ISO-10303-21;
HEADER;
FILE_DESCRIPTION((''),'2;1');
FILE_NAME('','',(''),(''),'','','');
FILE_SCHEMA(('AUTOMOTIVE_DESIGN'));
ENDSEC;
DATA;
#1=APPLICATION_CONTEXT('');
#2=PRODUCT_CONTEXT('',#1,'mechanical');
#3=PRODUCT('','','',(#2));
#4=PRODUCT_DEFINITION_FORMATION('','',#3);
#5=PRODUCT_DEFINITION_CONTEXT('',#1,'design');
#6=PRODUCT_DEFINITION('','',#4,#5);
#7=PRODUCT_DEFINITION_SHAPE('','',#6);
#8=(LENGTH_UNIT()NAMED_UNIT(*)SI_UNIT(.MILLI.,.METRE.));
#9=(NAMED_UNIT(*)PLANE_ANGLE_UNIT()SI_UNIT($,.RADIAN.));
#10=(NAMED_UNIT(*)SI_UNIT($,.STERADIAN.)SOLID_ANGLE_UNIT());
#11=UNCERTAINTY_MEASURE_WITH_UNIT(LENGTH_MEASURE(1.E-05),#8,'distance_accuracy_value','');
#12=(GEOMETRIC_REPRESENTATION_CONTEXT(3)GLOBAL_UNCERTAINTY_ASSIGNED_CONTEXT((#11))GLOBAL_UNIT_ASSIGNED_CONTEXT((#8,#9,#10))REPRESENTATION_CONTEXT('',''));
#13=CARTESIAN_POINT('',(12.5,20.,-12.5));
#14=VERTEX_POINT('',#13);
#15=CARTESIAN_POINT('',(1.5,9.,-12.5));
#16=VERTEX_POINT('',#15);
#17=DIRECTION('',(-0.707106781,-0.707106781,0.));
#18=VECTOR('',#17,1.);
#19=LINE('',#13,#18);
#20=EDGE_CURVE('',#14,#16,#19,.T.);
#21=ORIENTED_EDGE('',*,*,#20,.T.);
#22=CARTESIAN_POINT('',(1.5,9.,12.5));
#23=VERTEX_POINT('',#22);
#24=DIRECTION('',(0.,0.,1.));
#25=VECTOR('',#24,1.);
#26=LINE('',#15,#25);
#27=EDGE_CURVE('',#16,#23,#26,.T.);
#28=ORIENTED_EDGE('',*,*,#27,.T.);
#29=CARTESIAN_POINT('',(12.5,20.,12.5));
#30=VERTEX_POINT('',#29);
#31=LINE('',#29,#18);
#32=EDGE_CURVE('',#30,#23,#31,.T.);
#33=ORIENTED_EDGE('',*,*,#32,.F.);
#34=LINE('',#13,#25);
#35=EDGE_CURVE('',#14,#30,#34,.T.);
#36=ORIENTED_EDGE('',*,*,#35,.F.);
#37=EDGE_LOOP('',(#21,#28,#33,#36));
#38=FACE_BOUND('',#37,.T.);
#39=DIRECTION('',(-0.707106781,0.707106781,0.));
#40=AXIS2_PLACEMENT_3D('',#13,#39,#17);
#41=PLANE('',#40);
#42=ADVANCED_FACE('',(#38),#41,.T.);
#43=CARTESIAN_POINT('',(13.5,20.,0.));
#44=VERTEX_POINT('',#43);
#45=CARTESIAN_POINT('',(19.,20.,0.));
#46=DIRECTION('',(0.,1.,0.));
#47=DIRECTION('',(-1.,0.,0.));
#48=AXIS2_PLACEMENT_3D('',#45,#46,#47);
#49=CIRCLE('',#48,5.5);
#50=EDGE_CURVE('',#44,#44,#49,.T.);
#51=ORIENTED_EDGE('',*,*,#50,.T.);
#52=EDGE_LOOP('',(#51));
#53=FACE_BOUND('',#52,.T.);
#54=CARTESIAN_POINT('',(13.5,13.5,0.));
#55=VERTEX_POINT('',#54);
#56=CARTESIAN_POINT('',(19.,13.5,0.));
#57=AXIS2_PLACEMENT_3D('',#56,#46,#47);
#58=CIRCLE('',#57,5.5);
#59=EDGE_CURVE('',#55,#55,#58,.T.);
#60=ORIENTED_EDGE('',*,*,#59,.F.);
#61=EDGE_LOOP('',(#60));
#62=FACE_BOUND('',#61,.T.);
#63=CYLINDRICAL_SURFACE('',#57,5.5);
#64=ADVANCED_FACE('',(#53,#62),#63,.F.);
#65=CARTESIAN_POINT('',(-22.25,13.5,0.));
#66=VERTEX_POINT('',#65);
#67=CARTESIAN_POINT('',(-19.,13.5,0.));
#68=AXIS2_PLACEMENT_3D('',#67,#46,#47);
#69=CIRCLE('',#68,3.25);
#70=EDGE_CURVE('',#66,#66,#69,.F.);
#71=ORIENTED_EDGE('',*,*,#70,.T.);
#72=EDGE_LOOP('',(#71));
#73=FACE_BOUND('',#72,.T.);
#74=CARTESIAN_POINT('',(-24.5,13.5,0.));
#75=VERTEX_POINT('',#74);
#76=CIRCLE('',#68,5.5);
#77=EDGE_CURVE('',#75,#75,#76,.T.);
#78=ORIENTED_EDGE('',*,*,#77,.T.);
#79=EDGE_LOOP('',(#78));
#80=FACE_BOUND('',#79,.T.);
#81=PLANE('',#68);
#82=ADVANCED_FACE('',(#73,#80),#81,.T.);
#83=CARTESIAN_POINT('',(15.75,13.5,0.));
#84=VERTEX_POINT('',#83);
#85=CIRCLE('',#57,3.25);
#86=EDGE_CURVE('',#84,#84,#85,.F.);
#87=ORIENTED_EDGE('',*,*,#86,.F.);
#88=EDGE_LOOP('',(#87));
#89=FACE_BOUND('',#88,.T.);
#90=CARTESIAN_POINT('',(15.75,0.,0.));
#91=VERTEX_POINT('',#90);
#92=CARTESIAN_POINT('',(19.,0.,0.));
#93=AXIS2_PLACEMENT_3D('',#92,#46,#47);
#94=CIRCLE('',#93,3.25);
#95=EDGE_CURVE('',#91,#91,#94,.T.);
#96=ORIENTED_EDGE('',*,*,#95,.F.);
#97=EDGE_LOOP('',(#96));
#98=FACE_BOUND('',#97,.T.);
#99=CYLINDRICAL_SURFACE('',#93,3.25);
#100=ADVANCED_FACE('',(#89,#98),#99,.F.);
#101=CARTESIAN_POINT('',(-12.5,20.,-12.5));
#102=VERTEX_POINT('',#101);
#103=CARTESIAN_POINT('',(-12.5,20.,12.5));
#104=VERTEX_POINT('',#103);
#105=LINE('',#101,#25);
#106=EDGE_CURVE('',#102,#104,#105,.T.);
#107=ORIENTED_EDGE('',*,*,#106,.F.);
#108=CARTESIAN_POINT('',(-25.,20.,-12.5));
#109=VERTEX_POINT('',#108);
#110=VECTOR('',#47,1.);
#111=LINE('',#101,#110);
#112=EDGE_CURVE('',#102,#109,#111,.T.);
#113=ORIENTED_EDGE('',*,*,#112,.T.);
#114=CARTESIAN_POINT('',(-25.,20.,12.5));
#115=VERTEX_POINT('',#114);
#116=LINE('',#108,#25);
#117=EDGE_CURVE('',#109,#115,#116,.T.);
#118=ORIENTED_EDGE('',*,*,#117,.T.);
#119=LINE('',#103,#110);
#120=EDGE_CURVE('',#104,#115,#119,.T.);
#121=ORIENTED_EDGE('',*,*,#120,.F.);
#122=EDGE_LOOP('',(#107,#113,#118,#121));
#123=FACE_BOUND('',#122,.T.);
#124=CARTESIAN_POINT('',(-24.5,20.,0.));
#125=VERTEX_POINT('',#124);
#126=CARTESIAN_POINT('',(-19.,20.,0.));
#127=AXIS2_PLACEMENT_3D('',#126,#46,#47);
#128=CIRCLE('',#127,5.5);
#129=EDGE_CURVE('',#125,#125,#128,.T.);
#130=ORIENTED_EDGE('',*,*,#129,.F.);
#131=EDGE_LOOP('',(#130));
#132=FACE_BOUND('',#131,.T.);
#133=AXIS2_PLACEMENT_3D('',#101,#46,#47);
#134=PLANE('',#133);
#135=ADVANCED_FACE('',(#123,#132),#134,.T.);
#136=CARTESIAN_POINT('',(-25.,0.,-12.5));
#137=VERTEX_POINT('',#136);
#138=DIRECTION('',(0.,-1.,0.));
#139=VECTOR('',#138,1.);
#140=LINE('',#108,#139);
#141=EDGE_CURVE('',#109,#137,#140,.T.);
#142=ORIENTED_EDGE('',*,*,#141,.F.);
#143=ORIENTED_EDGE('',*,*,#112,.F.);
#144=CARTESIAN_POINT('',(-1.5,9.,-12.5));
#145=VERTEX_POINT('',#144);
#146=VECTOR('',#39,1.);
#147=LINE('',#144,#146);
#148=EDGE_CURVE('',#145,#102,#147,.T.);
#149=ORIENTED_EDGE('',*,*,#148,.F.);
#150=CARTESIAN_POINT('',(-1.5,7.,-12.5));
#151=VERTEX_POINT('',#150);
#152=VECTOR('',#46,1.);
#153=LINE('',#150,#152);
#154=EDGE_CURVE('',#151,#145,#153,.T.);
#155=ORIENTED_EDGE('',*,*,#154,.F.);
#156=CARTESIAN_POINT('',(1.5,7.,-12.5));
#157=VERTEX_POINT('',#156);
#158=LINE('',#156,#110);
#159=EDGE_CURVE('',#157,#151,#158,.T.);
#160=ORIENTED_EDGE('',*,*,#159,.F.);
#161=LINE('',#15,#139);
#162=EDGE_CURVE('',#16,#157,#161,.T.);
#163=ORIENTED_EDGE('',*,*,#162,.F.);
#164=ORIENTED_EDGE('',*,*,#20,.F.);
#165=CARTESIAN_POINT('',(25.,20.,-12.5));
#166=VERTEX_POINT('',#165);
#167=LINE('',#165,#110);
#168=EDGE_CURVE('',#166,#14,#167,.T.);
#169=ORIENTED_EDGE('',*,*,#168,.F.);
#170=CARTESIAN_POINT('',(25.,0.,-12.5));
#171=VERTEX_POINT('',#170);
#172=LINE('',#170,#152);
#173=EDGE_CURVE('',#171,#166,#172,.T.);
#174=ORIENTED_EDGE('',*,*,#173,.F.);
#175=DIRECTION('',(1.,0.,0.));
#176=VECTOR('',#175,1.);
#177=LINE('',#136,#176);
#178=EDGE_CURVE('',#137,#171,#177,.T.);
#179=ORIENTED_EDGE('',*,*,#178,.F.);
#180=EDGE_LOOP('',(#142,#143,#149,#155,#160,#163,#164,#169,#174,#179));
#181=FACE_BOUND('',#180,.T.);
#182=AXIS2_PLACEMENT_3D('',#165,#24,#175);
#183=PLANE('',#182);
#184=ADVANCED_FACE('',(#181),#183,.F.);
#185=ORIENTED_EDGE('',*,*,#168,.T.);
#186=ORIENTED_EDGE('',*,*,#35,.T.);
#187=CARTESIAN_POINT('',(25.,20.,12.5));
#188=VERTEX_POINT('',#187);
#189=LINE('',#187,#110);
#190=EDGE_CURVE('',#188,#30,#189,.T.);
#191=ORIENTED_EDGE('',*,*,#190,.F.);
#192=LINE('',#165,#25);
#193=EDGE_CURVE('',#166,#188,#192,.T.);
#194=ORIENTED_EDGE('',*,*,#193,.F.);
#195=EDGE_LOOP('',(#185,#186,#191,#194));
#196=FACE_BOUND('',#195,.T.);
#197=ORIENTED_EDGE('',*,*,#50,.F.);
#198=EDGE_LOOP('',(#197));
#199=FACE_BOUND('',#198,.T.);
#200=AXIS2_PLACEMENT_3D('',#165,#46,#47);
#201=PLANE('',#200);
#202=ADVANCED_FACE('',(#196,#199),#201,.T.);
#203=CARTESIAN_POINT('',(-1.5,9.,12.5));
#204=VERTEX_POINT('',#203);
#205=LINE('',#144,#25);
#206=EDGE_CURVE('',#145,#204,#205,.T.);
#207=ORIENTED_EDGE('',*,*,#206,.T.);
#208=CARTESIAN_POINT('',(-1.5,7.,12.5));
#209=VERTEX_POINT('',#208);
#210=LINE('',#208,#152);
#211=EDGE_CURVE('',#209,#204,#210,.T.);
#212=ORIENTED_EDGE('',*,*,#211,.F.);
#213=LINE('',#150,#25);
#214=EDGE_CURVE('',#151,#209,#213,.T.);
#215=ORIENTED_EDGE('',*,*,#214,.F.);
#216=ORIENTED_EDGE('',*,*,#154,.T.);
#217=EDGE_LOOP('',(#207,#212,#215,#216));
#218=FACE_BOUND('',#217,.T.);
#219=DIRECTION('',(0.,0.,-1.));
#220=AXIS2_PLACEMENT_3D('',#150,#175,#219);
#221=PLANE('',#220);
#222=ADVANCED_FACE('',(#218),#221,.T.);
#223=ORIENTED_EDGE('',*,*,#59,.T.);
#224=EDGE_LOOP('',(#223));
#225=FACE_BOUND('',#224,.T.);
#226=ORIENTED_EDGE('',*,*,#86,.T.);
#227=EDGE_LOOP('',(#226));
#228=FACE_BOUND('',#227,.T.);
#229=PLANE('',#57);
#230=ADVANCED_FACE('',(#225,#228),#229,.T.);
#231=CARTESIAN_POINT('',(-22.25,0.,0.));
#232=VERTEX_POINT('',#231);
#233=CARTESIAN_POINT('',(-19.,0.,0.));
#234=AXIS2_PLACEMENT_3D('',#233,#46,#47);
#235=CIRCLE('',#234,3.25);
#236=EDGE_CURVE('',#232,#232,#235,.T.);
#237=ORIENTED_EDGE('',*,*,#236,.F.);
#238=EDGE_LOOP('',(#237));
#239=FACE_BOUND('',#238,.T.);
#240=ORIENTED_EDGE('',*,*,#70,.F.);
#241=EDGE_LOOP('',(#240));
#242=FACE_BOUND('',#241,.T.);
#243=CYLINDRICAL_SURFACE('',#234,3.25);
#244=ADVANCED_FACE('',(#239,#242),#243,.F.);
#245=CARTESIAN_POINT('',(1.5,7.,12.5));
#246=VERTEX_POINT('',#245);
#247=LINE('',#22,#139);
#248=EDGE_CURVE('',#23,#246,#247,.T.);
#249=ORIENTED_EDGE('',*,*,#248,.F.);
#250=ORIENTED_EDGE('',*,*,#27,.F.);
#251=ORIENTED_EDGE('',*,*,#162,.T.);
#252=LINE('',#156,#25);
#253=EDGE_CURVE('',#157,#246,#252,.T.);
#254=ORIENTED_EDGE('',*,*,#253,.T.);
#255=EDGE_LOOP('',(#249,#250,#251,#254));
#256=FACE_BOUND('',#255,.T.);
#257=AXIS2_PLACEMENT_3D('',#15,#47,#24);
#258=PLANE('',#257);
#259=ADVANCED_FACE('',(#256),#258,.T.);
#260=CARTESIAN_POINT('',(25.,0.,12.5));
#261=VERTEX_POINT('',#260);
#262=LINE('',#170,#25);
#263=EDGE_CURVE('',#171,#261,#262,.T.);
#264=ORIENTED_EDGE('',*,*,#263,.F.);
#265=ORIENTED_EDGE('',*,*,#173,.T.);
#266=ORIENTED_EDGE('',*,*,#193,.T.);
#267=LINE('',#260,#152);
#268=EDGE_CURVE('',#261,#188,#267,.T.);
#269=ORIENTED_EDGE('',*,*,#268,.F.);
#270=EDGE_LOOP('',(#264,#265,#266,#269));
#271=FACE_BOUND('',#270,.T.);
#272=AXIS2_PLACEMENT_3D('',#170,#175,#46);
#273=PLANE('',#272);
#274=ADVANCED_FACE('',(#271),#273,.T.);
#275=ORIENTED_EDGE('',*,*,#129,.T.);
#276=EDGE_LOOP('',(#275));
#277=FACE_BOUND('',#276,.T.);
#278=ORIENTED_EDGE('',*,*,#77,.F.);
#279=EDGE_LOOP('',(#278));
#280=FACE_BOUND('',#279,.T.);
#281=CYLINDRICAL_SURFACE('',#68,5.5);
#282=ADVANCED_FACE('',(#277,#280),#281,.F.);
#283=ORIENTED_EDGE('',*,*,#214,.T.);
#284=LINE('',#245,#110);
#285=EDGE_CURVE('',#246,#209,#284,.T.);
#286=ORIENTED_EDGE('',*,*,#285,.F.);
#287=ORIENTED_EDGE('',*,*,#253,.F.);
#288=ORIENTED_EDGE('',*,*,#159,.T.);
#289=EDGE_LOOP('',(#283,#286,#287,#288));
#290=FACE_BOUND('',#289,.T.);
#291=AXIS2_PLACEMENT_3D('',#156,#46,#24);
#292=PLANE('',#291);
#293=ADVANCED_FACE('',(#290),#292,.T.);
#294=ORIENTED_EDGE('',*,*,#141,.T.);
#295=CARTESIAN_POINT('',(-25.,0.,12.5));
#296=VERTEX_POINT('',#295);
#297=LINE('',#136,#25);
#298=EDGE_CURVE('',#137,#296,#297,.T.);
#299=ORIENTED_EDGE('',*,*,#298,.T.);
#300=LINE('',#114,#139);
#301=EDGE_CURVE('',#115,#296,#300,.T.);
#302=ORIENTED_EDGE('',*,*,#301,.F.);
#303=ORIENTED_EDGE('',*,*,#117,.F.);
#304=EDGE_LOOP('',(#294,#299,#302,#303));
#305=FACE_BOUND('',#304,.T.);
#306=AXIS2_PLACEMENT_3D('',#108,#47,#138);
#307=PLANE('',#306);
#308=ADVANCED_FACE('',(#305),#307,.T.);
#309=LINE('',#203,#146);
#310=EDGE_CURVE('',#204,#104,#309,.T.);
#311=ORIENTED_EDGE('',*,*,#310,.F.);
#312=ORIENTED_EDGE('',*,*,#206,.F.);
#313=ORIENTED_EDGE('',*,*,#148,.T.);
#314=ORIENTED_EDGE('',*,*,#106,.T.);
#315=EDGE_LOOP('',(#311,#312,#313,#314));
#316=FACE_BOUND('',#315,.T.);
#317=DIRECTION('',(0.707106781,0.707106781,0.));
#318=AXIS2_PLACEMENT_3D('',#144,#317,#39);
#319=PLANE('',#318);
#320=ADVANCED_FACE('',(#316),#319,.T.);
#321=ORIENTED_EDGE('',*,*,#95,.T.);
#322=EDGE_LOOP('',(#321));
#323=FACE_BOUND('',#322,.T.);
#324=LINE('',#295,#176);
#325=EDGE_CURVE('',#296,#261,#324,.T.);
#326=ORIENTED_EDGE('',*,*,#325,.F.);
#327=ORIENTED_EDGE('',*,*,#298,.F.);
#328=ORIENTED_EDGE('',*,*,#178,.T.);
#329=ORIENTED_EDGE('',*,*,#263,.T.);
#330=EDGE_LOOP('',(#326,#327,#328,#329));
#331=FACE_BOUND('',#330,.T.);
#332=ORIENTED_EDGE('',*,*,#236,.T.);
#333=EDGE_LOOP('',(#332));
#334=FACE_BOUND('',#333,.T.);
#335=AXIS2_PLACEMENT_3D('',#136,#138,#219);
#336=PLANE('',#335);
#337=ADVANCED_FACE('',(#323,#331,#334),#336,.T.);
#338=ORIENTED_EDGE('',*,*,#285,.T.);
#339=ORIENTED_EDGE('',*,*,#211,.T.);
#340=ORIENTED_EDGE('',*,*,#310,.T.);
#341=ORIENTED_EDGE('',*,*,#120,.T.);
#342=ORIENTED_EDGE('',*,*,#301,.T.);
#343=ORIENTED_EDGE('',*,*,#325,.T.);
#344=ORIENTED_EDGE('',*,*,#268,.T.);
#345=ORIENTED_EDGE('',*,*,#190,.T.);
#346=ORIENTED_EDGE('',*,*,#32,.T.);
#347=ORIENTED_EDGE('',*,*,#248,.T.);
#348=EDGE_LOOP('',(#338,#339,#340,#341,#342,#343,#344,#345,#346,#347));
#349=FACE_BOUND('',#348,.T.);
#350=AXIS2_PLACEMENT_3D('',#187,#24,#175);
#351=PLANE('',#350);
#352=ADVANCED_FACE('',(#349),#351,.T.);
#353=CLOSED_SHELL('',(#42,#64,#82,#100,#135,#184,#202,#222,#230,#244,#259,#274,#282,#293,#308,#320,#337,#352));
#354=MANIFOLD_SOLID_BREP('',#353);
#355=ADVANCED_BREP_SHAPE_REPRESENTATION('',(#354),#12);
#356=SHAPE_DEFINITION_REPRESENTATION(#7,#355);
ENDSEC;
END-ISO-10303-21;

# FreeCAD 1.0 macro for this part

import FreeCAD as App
import Part
import Sketcher
Q = App.Units.Quantity

doc = App.newDocument("Part")
params = doc.addObject("Spreadsheet::Sheet", "Params")
for row, (alias, value) in enumerate([
    ("sketch1_width", "50 mm"),
    ("sketch1_width2", "3 mm"),
    ("sketch1_height", "20 mm"),
    ("sketch1_height2", "2 mm"),
    ("sketch1_width3", "12.5 mm"),
    ("pad1_length", "12.5 mm"),
    ("pad1_length2", "12.5 mm"),
    ("sketch2_diameter", "6.5 mm"),
    ("sketch3_diameter", "11 mm"),
    ("pocket2_length", "6.5 mm"),
], start=1):
    params.set(f"A{row}", alias)
    params.set(f"B{row}", "=" + value)
    params.setAlias(f"B{row}", alias)

body = doc.addObject("PartDesign::Body", "Body")

sketch1 = body.newObject("Sketcher::SketchObject", "Sketch")
sketch1.AttachmentSupport = (doc.getObject("XY_Plane"), [""])
sketch1.MapMode = "FlatFace"
sketch1.addGeometry(Part.LineSegment(App.Vector(-25, 0, 0), App.Vector(25, 0, 0)), False)
sketch1.addGeometry(Part.LineSegment(App.Vector(25, 0, 0), App.Vector(25, 20, 0)), False)
sketch1.addGeometry(Part.LineSegment(App.Vector(25, 20, 0), App.Vector(12.5, 20, 0)), False)
sketch1.addGeometry(Part.LineSegment(App.Vector(12.5, 20, 0), App.Vector(1.5, 9, 0)), False)
sketch1.addGeometry(Part.LineSegment(App.Vector(1.5, 9, 0), App.Vector(1.5, 7, 0)), False)
sketch1.addGeometry(Part.LineSegment(App.Vector(1.5, 7, 0), App.Vector(-1.5, 7, 0)), False)
sketch1.addGeometry(Part.LineSegment(App.Vector(-1.5, 7, 0), App.Vector(-1.5, 9, 0)), False)
sketch1.addGeometry(Part.LineSegment(App.Vector(-1.5, 9, 0), App.Vector(-12.5, 20, 0)), False)
sketch1.addGeometry(Part.LineSegment(App.Vector(-12.5, 20, 0), App.Vector(-25, 20, 0)), False)
sketch1.addGeometry(Part.LineSegment(App.Vector(-25, 20, 0), App.Vector(-25, 0, 0)), False)
sketch1.addConstraint(Sketcher.Constraint("Coincident", 0, 2, 1, 1))
sketch1.addConstraint(Sketcher.Constraint("Coincident", 1, 2, 2, 1))
sketch1.addConstraint(Sketcher.Constraint("Coincident", 2, 2, 3, 1))
sketch1.addConstraint(Sketcher.Constraint("Coincident", 3, 2, 4, 1))
sketch1.addConstraint(Sketcher.Constraint("Coincident", 4, 2, 5, 1))
sketch1.addConstraint(Sketcher.Constraint("Coincident", 5, 2, 6, 1))
sketch1.addConstraint(Sketcher.Constraint("Coincident", 6, 2, 7, 1))
sketch1.addConstraint(Sketcher.Constraint("Coincident", 7, 2, 8, 1))
sketch1.addConstraint(Sketcher.Constraint("Coincident", 8, 2, 9, 1))
sketch1.addConstraint(Sketcher.Constraint("Coincident", 9, 2, 0, 1))
sketch1.addConstraint(Sketcher.Constraint("Horizontal", 0))
sketch1.addConstraint(Sketcher.Constraint("Vertical", 1))
sketch1.addConstraint(Sketcher.Constraint("Horizontal", 2))
sketch1.addConstraint(Sketcher.Constraint("Vertical", 4))
sketch1.addConstraint(Sketcher.Constraint("Horizontal", 5))
sketch1.addConstraint(Sketcher.Constraint("Vertical", 6))
sketch1.addConstraint(Sketcher.Constraint("Horizontal", 8))
sketch1.addConstraint(Sketcher.Constraint("Vertical", 9))
sketch1.addConstraint(Sketcher.Constraint("Symmetric", 0, 2, 9, 2, -1, 1))
sketch1.addConstraint(Sketcher.Constraint("Symmetric", 3, 2, 6, 2, -2))
sketch1.addConstraint(Sketcher.Constraint("Symmetric", 2, 2, 7, 2, -2))
sketch1.addConstraint(Sketcher.Constraint("Perpendicular", 3, 7))
sketch1.addConstraint(Sketcher.Constraint("DistanceX", 0, 1, 0, 2, Q("50 mm")))
sketch1.addConstraint(Sketcher.Constraint("DistanceX", 5, 2, 5, 1, Q("3 mm")))
sketch1.addConstraint(Sketcher.Constraint("DistanceY", 1, 1, 1, 2, Q("20 mm")))
sketch1.addConstraint(Sketcher.Constraint("DistanceY", 4, 2, 4, 1, Q("2 mm")))
sketch1.addConstraint(Sketcher.Constraint("DistanceX", 2, 2, 2, 1, Q("12.5 mm")))
sketch1.setExpression("Constraints[22]", "Params.sketch1_width")
sketch1.setExpression("Constraints[23]", "Params.sketch1_width2")
sketch1.setExpression("Constraints[24]", "Params.sketch1_height")
sketch1.setExpression("Constraints[25]", "Params.sketch1_height2")
sketch1.setExpression("Constraints[26]", "Params.sketch1_width3")
pad1 = body.newObject("PartDesign::Pad", "Pad")
pad1.Profile = sketch1
pad1.Type = "TwoLengths"
pad1.setExpression("Length", "Params.pad1_length")
pad1.setExpression("Length2", "Params.pad1_length2")

sketch2 = body.newObject("Sketcher::SketchObject", "Sketch001")
sketch2.AttachmentSupport = (doc.getObject("XZ_Plane"), [""])
sketch2.MapMode = "FlatFace"
sketch2.AttachmentOffset = App.Placement(App.Vector(0, 0, -20), App.Rotation())
sketch2.addGeometry(Part.Circle(App.Vector(-19, 0, 0), App.Vector(0, 0, 1), 3.2), False)
sketch2.addGeometry(Part.Circle(App.Vector(19, 0, 0), App.Vector(0, 0, 1), 3.2), False)
sketch2.addConstraint(Sketcher.Constraint("Equal", 0, 1))
sketch2.addConstraint(Sketcher.Constraint("Symmetric", 0, 3, 1, 3, -1, 1))
sketch2.addConstraint(Sketcher.Constraint("PointOnObject", 0, 3, -1))
sketch2.addConstraint(Sketcher.Constraint("Diameter", 0, Q("6.5 mm")))
sketch2.addConstraint(Sketcher.Constraint("DistanceX", 0, 3, -1, 1, Q("19 mm")))
sketch2.setExpression("Constraints[3]", "Params.sketch2_diameter")
pocket1 = body.newObject("PartDesign::Pocket", "Pocket")
pocket1.Profile = sketch2
pocket1.Type = "ThroughAll"
pocket1.Reversed = True

sketch3 = body.newObject("Sketcher::SketchObject", "Sketch002")
sketch3.AttachmentSupport = (doc.getObject("XZ_Plane"), [""])
sketch3.MapMode = "FlatFace"
sketch3.AttachmentOffset = App.Placement(App.Vector(0, 0, -20), App.Rotation())
sketch3.addGeometry(Part.Circle(App.Vector(-19, 0, 0), App.Vector(0, 0, 1), 6), False)
sketch3.addGeometry(Part.Circle(App.Vector(19, 0, 0), App.Vector(0, 0, 1), 6), False)
sketch3.addConstraint(Sketcher.Constraint("Equal", 0, 1))
sketch3.addConstraint(Sketcher.Constraint("Symmetric", 0, 3, 1, 3, -1, 1))
sketch3.addConstraint(Sketcher.Constraint("PointOnObject", 0, 3, -1))
sketch3.addConstraint(Sketcher.Constraint("Diameter", 0, Q("11 mm")))
sketch3.addConstraint(Sketcher.Constraint("DistanceX", 0, 3, -1, 1, Q("19 mm")))
sketch3.setExpression("Constraints[3]", "Params.sketch3_diameter")
pocket2 = body.newObject("PartDesign::Pocket", "Pocket001")
pocket2.Profile = sketch3
pocket2.setExpression("Length", "Params.pocket2_length")
pocket2.Reversed = True

doc.recompute()
